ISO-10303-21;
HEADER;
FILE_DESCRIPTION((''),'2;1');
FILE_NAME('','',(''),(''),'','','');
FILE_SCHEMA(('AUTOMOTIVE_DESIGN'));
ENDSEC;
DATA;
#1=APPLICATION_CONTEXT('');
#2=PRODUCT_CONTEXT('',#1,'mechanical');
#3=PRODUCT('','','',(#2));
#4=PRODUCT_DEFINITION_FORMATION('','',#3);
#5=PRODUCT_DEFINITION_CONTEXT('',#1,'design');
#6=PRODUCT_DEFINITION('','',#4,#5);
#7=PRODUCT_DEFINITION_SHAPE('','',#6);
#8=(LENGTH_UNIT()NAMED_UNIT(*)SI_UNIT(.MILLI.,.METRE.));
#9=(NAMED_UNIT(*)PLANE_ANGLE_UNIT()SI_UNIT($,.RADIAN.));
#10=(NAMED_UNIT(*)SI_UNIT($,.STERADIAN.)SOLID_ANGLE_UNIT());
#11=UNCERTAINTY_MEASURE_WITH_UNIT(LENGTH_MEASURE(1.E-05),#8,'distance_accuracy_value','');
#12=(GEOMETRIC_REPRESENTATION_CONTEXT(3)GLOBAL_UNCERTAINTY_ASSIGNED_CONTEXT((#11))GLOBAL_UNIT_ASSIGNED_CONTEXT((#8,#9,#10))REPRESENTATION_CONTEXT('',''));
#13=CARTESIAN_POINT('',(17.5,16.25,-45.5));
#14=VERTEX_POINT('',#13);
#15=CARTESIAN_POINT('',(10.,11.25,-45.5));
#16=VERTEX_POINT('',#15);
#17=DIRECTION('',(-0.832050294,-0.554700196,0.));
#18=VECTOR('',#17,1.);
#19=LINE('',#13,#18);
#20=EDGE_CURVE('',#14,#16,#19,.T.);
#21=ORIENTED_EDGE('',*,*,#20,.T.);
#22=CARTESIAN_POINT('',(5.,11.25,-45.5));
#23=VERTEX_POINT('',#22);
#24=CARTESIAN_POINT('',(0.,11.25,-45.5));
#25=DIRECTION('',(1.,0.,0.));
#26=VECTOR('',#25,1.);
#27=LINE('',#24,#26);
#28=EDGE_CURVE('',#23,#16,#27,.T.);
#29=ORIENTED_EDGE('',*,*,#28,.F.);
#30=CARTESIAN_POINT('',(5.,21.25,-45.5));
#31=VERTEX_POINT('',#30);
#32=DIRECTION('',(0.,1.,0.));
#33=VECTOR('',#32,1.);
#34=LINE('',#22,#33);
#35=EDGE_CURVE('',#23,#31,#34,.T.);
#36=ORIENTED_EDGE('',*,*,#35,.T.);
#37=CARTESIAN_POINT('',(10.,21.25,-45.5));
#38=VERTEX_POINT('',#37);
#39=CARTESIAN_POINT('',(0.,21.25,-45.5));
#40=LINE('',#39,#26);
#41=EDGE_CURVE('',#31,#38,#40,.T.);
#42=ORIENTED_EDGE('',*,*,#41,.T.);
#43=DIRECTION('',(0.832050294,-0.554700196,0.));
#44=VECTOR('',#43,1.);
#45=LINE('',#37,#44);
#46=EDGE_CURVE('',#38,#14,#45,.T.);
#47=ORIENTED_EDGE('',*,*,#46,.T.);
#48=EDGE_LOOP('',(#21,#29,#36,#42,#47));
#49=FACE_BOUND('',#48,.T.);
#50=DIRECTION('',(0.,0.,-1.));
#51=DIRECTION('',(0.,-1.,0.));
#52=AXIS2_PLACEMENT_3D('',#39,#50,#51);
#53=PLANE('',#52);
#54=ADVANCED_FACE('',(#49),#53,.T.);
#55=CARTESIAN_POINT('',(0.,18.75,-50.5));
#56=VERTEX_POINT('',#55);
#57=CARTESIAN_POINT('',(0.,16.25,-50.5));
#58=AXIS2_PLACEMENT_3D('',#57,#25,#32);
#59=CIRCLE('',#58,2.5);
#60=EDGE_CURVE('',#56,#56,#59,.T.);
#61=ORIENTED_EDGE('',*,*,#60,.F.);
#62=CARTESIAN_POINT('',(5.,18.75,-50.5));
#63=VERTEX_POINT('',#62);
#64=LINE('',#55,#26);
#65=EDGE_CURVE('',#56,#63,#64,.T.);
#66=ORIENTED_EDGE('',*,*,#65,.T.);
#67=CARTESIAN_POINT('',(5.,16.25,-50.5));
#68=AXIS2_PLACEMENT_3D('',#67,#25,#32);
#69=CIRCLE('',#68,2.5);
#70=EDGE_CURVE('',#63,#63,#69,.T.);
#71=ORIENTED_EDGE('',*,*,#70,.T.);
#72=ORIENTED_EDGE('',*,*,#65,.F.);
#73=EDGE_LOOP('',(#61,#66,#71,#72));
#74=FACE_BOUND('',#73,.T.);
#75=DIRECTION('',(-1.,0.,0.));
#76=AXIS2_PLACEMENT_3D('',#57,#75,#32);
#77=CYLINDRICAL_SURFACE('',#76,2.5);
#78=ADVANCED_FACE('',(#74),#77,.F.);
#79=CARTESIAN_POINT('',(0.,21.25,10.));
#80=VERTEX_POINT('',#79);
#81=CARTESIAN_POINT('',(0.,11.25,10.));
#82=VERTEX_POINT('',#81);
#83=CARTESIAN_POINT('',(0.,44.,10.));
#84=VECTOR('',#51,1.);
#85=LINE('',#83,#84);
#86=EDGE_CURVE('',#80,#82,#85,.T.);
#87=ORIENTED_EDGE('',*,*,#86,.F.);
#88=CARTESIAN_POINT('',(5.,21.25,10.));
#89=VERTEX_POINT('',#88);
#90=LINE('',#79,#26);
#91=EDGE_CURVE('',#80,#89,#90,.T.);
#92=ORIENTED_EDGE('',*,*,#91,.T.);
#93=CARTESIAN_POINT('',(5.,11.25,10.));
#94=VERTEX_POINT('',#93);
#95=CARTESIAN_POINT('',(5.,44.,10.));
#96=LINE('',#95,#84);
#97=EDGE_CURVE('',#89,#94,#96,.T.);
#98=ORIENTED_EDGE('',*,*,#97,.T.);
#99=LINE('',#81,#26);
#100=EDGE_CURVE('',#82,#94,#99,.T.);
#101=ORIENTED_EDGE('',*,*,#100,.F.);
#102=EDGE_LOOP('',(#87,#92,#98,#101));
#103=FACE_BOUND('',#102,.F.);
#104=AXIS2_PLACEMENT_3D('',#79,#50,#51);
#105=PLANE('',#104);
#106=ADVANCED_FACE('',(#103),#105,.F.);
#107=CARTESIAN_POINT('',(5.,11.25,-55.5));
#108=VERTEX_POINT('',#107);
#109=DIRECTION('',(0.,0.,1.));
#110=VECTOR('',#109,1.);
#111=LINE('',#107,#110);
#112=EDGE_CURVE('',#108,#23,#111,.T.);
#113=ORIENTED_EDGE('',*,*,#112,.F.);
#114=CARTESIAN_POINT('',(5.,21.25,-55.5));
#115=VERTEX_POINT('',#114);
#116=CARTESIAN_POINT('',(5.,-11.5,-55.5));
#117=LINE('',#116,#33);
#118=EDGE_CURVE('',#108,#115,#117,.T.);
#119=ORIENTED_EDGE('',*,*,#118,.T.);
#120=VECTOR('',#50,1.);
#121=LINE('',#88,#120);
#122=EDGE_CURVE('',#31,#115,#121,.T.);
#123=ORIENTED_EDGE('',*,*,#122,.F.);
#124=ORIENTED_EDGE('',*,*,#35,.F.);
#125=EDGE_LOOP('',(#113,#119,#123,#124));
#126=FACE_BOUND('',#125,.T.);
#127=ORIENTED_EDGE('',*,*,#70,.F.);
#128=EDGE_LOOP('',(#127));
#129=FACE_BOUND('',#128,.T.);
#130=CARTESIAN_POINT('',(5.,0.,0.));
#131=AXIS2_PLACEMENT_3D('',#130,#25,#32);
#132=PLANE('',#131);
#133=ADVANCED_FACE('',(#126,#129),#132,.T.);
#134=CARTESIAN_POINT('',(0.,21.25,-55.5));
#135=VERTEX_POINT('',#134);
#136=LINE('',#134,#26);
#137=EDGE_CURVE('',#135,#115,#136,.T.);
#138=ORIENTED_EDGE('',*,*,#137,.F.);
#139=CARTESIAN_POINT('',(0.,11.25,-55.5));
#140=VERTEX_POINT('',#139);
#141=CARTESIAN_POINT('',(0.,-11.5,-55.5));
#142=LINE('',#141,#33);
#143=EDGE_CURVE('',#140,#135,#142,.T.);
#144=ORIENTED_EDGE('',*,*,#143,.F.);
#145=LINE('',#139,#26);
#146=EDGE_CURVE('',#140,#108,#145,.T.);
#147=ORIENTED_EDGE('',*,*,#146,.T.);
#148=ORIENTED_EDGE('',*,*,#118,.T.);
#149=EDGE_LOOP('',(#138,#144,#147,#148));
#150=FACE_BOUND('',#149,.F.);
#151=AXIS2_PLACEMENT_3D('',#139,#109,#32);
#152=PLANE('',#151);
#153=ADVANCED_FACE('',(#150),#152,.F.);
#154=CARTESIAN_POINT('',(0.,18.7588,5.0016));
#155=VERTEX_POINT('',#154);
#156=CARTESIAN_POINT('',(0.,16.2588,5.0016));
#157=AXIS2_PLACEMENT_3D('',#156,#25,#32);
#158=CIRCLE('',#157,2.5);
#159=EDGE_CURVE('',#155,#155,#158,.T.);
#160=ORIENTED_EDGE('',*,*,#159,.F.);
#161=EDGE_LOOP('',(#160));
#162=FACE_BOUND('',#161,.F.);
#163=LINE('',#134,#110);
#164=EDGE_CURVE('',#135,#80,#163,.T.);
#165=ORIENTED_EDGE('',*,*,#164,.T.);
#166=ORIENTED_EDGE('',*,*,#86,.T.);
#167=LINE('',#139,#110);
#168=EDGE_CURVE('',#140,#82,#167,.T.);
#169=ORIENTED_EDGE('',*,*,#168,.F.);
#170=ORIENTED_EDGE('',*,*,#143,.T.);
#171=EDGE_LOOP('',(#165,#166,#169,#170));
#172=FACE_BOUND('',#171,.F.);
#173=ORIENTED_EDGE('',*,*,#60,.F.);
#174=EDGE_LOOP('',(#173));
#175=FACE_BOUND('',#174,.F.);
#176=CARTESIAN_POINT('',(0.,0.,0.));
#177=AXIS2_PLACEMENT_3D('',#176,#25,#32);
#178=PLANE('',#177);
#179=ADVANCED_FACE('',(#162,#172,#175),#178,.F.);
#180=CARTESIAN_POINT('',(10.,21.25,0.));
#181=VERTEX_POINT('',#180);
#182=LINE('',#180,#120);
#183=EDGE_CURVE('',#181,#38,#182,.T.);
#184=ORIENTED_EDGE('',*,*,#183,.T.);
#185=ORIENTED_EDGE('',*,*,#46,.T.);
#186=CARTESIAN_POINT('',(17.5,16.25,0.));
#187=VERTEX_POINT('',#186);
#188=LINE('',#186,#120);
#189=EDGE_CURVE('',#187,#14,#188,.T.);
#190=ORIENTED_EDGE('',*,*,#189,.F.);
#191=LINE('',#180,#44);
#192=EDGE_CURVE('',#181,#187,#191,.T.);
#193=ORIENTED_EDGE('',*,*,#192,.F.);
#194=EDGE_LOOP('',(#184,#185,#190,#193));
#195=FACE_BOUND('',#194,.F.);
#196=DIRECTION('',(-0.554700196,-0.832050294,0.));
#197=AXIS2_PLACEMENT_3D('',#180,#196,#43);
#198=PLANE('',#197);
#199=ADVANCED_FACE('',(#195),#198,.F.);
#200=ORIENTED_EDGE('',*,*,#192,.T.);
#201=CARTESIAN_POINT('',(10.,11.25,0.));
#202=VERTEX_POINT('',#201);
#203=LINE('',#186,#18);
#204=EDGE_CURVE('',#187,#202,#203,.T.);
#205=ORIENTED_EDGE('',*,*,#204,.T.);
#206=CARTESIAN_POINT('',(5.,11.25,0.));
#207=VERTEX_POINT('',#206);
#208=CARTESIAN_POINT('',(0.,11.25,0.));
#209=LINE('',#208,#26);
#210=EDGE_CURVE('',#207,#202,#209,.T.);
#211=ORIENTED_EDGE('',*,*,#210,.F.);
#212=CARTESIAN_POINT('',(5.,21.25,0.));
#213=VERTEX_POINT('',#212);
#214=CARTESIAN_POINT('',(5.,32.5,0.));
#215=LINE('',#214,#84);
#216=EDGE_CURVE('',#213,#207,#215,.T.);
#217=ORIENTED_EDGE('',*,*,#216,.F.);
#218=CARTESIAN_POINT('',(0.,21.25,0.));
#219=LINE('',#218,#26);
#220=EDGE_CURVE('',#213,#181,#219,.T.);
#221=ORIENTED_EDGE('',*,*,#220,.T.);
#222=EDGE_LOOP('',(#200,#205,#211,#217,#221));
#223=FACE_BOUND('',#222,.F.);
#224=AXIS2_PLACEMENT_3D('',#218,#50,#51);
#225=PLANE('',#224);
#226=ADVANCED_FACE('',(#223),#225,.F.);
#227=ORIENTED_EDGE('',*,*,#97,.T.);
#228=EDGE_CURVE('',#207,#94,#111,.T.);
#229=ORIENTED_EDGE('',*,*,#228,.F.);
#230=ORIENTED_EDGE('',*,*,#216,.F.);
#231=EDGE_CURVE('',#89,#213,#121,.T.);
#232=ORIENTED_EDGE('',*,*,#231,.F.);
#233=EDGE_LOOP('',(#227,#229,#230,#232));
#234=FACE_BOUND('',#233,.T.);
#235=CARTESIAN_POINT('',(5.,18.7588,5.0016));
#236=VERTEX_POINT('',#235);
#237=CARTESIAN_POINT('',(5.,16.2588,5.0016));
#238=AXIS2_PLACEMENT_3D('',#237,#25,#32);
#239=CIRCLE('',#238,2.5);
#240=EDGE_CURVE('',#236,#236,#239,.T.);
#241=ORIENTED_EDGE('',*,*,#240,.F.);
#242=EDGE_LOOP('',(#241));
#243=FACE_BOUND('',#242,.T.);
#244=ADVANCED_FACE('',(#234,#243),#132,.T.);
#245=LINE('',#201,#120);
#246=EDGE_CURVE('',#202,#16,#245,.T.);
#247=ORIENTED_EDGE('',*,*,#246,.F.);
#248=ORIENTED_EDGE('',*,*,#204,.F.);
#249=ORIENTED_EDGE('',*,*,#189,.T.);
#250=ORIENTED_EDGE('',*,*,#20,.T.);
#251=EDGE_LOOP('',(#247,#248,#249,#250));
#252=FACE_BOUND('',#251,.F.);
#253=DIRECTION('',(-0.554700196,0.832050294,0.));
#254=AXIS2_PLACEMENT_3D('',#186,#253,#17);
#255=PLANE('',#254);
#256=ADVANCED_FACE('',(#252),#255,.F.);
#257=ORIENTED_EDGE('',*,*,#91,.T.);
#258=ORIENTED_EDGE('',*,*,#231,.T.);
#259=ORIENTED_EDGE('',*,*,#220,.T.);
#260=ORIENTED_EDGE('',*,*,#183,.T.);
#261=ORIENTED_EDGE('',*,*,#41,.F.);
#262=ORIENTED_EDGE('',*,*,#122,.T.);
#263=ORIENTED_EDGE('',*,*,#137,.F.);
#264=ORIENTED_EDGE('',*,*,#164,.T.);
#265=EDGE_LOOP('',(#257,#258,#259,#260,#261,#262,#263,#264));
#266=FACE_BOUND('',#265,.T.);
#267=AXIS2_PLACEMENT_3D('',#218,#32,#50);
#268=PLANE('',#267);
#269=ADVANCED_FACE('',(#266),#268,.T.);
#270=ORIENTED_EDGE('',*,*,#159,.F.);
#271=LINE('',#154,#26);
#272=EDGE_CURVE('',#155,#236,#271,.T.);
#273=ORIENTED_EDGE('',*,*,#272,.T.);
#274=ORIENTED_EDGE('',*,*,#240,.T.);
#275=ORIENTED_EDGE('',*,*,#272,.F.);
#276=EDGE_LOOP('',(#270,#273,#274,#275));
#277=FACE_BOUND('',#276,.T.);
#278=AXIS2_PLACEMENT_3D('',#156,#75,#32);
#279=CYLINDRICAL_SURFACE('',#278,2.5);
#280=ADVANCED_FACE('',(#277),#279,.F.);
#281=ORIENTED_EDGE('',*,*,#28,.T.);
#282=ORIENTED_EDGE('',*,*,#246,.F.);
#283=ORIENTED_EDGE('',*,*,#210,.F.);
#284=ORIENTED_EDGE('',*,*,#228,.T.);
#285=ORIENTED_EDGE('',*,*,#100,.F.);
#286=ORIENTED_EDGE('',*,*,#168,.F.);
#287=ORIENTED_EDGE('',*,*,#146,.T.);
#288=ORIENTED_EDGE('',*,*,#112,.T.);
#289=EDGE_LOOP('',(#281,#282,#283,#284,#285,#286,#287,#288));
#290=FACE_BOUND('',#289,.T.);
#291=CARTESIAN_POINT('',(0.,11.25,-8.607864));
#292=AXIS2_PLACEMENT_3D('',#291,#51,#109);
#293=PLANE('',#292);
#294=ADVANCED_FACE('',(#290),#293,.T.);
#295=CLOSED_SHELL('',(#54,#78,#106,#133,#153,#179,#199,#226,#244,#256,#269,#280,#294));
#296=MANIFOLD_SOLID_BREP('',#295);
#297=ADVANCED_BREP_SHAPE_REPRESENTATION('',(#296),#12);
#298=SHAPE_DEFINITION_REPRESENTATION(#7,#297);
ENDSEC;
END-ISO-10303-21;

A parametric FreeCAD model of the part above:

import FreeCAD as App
import Part
import Sketcher
from FreeCAD import Vector


def add_polygon(sketch, points):
    """Adds a closed chain of lines whose ends are joined by coincident constraints."""
    first, n = sketch.GeometryCount, len(points)
    for a, b in zip(points, points[1:] + points[:1]):
        sketch.addGeometry(Part.LineSegment(App.Vector(*a, 0), App.Vector(*b, 0)), False)
    for i in range(n):
        sketch.addConstraint(Sketcher.Constraint("Coincident", first + i, 2, first + (i + 1) % n, 1))

doc = App.newDocument("Part")
body = doc.addObject("PartDesign::Body", "Body")

sketch1 = body.newObject("Sketcher::SketchObject", "Sketch")
sketch1.AttachmentSupport = (doc.getObject("YZ_Plane"), [""])
sketch1.MapMode = "FlatFace"
add_polygon(sketch1, [(21, 0), (11, 0), (11, -46), (21, -46)])
sketch1.addConstraint([
    Sketcher.Constraint("Horizontal", 0),
    Sketcher.Constraint("Vertical", 1),
    Sketcher.Constraint("Horizontal", 2),
    Sketcher.Constraint("Vertical", 3),
    Sketcher.Constraint("PointOnObject", 0, 2, -1),
    Sketcher.Constraint("DistanceX", 0, 2, 0, 1, 10.0),
    Sketcher.Constraint("DistanceY", 1, 2, 1, 1, 45.5),
    Sketcher.Constraint("DistanceX", -1, 1, 0, 2, 11.25),
])
pad1 = body.newObject("PartDesign::Pad", "Pad")
pad1.Profile = sketch1
pad1.Length = 10

sketch2 = body.newObject("Sketcher::SketchObject", "Sketch001")
sketch2.AttachmentSupport = (doc.getObject("YZ_Plane"), [""])
sketch2.MapMode = "FlatFace"
add_polygon(sketch2, [(11.2, 0), (21.2, 0), (21.2, 10), (11.2, 10)])
sketch2.addGeometry(Part.Circle(Vector(16.3, 5, 0), Vector(0, 0, 1), 2.5), False)
add_polygon(sketch2, [(21.2, -45.5), (11.2, -45.5), (11.2, -55.5), (21.2, -55.5)])
sketch2.addGeometry(Part.Circle(Vector(16.2, -50.5, 0), Vector(0, 0, 1), 2.5), False)
sketch2.addConstraint([
    Sketcher.Constraint("Horizontal", 0),
    Sketcher.Constraint("Vertical", 1),
    Sketcher.Constraint("Horizontal", 2),
    Sketcher.Constraint("Vertical", 3),
    Sketcher.Constraint("Horizontal", 5),
    Sketcher.Constraint("Vertical", 6),
    Sketcher.Constraint("Horizontal", 7),
    Sketcher.Constraint("Vertical", 8),
    Sketcher.Constraint("Equal", 4, 9),
    Sketcher.Constraint("PointOnObject", 0, 2, -1),
    Sketcher.Constraint("Vertical", 3, 2, 5, 2),
    Sketcher.Constraint("Vertical", 1, 2, 7, 2),
    Sketcher.Constraint("Equal", 7, 1),
    Sketcher.Constraint("Equal", 3, 6),
    Sketcher.Constraint("Diameter", 4, 5.0),
    Sketcher.Constraint("DistanceX", 0, 1, 0, 2, 10.0),
    Sketcher.Constraint("DistanceX", 9, 3, 0, 2, 5.0),
    Sketcher.Constraint("DistanceY", 9, 3, 5, 2, 5.0),
    Sketcher.Constraint("DistanceY", 9, 3, -1, 1, 50.5),
    Sketcher.Constraint("DistanceX", -1, 1, 9, 3, 16.25),
    Sketcher.Constraint("DistanceX", -1, 1, 4, 3, 16.2588),
    Sketcher.Constraint("DistanceY", -1, 1, 4, 3, 5.0016),
])
pad2 = body.newObject("PartDesign::Pad", "Pad001")
pad2.Profile = sketch2
pad2.Length = 5

sketch3 = body.newObject("Sketcher::SketchObject", "Sketch002")
sketch3.AttachmentSupport = (doc.getObject("XY_Plane"), [""])
sketch3.MapMode = "FlatFace"
add_polygon(sketch3, [(18, 16), (10, 21), (10, 11)])
sketch3.addConstraint([
    Sketcher.Constraint("Vertical", 1),
    Sketcher.Constraint("Equal", 0, 2),
    Sketcher.Constraint("DistanceY", 1, 2, 1, 1, 10.0),
    Sketcher.Constraint("DistanceX", -1, 1, 0, 2, 10.0),
    Sketcher.Constraint("DistanceX", -1, 1, 2, 2, 17.5),
    Sketcher.Constraint("DistanceY", -1, 1, 0, 2, 21.25),
])
pad3 = body.newObject("PartDesign::Pad", "Pad002")
pad3.Profile = sketch3
pad3.Length = 45.5
pad3.Reversed = True

doc.recompute()
